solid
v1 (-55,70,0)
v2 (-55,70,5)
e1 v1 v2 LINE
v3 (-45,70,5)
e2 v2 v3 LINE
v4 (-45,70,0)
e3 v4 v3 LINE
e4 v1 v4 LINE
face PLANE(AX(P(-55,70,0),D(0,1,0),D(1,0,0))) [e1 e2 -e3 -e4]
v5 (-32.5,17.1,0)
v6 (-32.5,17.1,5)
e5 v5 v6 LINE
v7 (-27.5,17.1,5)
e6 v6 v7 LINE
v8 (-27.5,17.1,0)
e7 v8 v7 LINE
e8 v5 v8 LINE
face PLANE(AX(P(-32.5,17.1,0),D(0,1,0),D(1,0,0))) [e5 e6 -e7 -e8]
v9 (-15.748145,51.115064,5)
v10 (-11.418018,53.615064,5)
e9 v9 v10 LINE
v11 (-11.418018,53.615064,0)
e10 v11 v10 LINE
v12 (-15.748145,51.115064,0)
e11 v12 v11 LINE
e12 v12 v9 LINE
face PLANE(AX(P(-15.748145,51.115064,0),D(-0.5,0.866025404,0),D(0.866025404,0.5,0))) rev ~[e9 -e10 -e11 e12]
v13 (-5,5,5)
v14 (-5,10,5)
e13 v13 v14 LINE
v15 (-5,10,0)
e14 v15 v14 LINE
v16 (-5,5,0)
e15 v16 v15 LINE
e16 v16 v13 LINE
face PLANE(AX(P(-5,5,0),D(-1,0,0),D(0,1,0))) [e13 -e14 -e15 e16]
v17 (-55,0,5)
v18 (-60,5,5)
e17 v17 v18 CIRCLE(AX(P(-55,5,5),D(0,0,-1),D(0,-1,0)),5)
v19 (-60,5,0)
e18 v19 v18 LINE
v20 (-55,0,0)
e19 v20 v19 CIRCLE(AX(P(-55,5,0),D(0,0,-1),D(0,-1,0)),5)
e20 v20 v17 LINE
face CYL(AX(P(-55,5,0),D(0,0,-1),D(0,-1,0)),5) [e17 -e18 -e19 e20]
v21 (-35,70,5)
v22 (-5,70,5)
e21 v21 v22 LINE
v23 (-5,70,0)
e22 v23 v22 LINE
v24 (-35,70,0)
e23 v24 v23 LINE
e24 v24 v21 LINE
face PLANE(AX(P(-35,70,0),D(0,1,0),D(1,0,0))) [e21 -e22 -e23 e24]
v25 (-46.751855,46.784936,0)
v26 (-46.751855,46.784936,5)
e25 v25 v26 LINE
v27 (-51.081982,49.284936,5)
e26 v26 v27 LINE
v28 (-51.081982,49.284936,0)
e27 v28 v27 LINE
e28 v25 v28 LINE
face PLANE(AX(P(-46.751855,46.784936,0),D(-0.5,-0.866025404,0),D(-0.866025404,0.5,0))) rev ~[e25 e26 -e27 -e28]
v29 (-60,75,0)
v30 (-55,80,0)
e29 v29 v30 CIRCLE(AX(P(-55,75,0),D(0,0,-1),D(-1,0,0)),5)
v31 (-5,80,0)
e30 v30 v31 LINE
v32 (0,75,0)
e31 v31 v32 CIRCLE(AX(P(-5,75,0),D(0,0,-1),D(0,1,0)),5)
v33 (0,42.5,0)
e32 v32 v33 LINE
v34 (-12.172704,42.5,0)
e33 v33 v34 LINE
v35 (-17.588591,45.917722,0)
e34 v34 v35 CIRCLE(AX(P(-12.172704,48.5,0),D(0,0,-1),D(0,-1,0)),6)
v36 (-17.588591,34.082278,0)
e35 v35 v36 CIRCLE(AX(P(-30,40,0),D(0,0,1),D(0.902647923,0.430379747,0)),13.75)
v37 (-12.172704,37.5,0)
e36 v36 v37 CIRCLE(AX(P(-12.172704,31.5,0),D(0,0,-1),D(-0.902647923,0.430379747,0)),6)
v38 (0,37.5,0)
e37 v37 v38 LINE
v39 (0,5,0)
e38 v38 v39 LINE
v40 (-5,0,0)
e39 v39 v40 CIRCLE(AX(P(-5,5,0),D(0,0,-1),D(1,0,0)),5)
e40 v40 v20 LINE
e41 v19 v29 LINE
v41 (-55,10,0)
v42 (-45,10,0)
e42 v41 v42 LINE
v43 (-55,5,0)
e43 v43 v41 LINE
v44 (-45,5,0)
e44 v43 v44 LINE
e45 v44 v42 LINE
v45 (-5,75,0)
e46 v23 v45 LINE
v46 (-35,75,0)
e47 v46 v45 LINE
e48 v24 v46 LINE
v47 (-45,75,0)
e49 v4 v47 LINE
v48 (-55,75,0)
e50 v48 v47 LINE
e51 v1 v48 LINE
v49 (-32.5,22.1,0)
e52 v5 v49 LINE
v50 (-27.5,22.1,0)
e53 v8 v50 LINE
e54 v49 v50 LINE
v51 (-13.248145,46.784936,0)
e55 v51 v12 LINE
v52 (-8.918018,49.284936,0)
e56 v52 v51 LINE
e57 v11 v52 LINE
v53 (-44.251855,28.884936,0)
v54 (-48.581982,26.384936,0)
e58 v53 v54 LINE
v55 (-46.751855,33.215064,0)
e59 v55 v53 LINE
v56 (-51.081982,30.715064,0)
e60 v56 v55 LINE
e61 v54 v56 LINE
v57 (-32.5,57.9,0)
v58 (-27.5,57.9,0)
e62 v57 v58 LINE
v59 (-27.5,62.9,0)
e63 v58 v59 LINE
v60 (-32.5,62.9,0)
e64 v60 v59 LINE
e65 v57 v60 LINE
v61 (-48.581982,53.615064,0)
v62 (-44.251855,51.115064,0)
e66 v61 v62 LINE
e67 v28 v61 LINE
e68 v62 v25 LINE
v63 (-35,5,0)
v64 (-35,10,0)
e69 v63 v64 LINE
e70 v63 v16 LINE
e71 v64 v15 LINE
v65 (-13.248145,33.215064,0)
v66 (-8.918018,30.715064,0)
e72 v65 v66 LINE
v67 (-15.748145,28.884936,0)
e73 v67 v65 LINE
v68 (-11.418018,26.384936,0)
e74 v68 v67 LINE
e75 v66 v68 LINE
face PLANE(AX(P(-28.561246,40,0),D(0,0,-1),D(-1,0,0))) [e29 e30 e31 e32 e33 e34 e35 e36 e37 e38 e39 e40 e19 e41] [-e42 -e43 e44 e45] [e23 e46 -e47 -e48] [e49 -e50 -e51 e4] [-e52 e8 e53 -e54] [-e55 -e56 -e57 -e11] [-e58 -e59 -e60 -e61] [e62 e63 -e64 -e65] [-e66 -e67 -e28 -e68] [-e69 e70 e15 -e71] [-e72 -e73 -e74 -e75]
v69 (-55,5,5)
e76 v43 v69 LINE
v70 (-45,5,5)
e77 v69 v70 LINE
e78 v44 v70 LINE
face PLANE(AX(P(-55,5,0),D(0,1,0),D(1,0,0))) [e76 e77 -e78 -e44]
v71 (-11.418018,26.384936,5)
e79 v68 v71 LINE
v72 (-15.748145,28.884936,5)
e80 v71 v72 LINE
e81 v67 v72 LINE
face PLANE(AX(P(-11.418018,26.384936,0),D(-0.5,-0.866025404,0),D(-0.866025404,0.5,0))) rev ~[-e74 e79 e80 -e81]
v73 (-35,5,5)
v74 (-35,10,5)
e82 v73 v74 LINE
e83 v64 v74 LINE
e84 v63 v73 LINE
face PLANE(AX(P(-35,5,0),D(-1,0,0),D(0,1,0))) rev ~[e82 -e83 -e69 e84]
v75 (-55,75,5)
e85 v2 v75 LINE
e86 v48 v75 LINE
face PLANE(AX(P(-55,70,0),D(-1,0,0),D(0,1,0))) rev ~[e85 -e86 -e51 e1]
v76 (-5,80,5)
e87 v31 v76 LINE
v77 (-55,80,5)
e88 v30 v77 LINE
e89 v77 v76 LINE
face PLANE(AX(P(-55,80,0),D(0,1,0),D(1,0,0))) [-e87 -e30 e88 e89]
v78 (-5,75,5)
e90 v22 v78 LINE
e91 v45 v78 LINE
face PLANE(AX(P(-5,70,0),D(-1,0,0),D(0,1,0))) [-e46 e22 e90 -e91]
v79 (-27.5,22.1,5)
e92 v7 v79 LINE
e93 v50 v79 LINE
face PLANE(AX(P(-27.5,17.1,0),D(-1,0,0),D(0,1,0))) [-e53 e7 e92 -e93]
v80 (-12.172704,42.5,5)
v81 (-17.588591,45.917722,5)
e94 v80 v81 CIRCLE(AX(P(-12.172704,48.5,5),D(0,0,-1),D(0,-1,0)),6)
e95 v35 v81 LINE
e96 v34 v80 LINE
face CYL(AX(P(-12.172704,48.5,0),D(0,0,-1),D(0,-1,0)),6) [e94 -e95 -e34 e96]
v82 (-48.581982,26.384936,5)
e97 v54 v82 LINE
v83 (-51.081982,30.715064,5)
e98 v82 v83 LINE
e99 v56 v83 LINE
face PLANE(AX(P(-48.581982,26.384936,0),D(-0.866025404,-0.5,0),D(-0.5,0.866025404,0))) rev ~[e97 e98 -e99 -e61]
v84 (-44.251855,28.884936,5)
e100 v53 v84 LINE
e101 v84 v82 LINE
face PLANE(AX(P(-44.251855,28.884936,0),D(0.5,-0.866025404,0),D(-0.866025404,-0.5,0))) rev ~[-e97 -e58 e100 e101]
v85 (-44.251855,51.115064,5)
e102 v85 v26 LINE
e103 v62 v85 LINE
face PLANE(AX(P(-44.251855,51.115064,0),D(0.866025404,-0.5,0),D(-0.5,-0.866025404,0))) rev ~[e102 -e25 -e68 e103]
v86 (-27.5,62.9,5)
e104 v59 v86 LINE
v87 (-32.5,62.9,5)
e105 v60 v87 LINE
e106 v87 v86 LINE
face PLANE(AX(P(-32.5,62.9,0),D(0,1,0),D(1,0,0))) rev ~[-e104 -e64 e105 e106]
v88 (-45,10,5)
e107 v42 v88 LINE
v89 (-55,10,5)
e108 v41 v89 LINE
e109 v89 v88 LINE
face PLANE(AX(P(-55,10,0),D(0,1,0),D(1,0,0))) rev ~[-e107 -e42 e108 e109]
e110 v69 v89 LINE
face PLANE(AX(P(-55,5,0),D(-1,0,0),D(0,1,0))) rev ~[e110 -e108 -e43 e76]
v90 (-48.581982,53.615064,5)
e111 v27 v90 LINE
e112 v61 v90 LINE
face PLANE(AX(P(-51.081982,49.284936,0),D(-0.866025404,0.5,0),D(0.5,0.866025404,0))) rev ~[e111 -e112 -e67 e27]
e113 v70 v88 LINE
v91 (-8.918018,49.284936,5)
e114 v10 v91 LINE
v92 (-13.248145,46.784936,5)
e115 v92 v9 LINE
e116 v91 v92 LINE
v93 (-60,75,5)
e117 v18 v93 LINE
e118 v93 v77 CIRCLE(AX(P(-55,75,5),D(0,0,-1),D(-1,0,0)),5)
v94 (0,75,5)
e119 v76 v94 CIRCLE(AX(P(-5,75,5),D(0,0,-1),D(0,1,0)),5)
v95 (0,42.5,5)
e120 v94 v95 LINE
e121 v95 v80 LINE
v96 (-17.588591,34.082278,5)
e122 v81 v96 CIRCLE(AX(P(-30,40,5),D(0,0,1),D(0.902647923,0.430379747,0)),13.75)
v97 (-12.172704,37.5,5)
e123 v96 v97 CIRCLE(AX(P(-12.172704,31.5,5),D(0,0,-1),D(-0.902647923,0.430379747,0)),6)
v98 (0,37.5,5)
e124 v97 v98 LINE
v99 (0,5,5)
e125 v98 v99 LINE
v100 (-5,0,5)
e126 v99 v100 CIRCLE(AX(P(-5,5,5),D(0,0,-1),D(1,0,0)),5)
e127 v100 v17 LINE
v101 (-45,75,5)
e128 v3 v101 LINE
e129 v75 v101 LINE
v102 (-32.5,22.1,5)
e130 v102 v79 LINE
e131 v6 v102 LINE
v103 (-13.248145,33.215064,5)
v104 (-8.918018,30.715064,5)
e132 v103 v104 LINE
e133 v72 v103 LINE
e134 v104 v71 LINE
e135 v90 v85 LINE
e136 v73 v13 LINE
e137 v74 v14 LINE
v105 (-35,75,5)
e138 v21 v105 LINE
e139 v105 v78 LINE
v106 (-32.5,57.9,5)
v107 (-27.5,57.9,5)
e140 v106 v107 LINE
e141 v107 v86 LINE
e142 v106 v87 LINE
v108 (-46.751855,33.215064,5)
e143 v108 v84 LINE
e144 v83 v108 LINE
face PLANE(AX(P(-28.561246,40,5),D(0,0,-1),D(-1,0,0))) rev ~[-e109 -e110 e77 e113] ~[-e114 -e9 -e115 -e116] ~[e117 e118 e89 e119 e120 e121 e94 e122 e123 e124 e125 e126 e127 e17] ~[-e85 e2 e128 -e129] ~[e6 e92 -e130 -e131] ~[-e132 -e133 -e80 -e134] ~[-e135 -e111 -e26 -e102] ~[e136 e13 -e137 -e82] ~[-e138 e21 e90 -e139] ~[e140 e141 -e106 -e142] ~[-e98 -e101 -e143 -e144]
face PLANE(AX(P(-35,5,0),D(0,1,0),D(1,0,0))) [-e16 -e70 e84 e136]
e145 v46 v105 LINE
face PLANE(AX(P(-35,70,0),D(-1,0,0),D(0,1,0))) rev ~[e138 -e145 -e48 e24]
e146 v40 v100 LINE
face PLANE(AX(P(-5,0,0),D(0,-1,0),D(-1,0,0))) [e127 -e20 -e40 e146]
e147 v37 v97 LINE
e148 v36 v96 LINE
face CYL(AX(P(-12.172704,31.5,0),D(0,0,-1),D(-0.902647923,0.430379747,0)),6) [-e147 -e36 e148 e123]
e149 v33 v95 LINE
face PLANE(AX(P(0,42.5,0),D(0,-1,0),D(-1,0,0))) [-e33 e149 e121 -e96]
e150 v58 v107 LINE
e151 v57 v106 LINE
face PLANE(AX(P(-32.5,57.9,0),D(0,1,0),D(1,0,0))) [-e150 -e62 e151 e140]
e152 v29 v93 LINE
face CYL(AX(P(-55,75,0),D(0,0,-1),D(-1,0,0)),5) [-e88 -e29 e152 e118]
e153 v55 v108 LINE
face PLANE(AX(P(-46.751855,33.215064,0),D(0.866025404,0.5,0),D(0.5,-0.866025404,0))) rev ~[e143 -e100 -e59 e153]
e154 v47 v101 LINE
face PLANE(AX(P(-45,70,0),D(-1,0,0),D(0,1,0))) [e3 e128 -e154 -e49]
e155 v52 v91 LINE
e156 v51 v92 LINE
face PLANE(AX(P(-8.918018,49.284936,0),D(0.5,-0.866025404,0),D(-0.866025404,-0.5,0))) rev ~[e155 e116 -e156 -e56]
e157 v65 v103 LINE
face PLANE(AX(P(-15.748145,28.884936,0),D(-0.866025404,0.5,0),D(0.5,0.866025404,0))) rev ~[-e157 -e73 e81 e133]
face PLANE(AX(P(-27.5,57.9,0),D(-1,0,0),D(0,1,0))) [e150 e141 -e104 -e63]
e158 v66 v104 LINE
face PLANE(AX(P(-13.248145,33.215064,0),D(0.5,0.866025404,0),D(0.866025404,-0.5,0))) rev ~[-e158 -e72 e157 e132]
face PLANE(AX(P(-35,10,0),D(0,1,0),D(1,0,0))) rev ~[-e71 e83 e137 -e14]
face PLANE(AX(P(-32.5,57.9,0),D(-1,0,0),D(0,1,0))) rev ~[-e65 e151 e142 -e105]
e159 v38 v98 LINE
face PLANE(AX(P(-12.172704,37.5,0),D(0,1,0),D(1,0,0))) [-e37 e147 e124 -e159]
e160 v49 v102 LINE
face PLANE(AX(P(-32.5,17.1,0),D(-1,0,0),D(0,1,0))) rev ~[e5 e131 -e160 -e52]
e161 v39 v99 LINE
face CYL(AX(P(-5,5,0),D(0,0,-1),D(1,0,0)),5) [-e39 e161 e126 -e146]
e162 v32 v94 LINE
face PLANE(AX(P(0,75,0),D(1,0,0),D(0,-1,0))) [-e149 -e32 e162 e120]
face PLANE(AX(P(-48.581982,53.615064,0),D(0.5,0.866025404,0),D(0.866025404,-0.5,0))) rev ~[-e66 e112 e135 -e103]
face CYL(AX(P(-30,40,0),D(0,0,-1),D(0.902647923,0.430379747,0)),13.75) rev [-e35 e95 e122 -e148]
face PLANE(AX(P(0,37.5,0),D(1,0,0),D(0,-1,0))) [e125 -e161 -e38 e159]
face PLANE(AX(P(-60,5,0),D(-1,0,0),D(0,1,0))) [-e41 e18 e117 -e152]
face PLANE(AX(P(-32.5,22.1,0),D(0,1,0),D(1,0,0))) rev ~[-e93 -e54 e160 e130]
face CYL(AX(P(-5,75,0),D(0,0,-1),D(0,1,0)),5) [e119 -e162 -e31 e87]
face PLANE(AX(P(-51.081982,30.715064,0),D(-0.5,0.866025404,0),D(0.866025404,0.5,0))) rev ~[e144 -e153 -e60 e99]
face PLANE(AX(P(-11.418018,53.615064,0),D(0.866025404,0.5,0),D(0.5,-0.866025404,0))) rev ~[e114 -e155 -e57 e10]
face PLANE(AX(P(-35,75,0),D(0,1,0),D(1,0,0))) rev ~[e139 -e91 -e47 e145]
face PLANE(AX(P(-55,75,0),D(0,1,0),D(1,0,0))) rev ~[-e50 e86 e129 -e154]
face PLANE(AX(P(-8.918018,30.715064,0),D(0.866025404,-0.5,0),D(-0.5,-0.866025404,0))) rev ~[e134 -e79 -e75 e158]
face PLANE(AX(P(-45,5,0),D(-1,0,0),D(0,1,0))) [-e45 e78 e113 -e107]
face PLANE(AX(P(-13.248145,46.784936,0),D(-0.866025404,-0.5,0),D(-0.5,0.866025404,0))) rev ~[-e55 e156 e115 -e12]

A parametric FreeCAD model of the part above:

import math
import FreeCAD as App
import Part
import Sketcher
Q = App.Units.Quantity


def add_polygon(sketch, points):
    """Adds a closed chain of lines whose ends are joined by coincident constraints."""
    first, n = sketch.GeometryCount, len(points)
    for a, b in zip(points, points[1:] + points[:1]):
        sketch.addGeometry(Part.LineSegment(App.Vector(*a, 0), App.Vector(*b, 0)), False)
    for i in range(n):
        sketch.addConstraint(Sketcher.Constraint("Coincident", first + i, 2, first + (i + 1) % n, 1))

doc = App.newDocument("Part")
body = doc.addObject("PartDesign::Body", "Body")

# Sketch on XY plane
sketch1 = body.newObject("Sketcher::SketchObject", "Sketch")
sketch1.AttachmentSupport = (doc.getObject("XY_Plane"), [""])
sketch1.MapMode = "FlatFace"
sketch1.addGeometry(Part.LineSegment(App.Vector(-5, 80, 0), App.Vector(-55, 80, 0)), False)  # 0
sketch1.addGeometry(Part.ArcOfCircle(Part.Circle(App.Vector(-55, 75, 0), App.Vector(0, 0, 1), 5), math.radians(90), math.radians(180)), False)  # 1
sketch1.addGeometry(Part.LineSegment(App.Vector(-60, 75, 0), App.Vector(-60, 5, 0)), False)  # 2
sketch1.addGeometry(Part.ArcOfCircle(Part.Circle(App.Vector(-55, 5, 0), App.Vector(0, 0, 1), 5), math.radians(180), math.radians(270)), False)  # 3
sketch1.addGeometry(Part.LineSegment(App.Vector(-55, 0, 0), App.Vector(-5, 0, 0)), False)  # 4
sketch1.addGeometry(Part.ArcOfCircle(Part.Circle(App.Vector(-5, 5, 0), App.Vector(0, 0, 1), 5), math.radians(-90), math.radians(0)), False)  # 5
sketch1.addGeometry(Part.LineSegment(App.Vector(0, 5, 0), App.Vector(0, 37.5, 0)), False)  # 6
sketch1.addGeometry(Part.LineSegment(App.Vector(0, 37.5, 0), App.Vector(-12.2, 37.5, 0)), False)  # 7
sketch1.addGeometry(Part.ArcOfCircle(Part.Circle(App.Vector(-12.2, 31.5, 0), App.Vector(0, 0, 1), 6), math.radians(90), math.radians(155)), False)  # 8
sketch1.addGeometry(Part.ArcOfCircle(Part.Circle(App.Vector(-30, 40, 0), App.Vector(0, 0, 1), 13.8), math.radians(25), math.radians(335)), False)  # 9
sketch1.addGeometry(Part.ArcOfCircle(Part.Circle(App.Vector(-12.2, 48.5, 0), App.Vector(0, 0, 1), 6), math.radians(-155), math.radians(-90)), False)  # 10
sketch1.addGeometry(Part.LineSegment(App.Vector(-12.2, 42.5, 0), App.Vector(0, 42.5, 0)), False)  # 11
sketch1.addGeometry(Part.LineSegment(App.Vector(0, 42.5, 0), App.Vector(0, 75, 0)), False)  # 12
sketch1.addGeometry(Part.ArcOfCircle(Part.Circle(App.Vector(-5, 75, 0), App.Vector(0, 0, 1), 5), math.radians(0), math.radians(90)), False)  # 13
add_polygon(sketch1, [(-35, 5), (-35, 10), (-5, 10), (-5, 5)])  # lines 14-17
add_polygon(sketch1, [(-8.9, 30.7), (-11.4, 26.4), (-15.7, 28.9), (-13.2, 33.2)])  # lines 18-21
add_polygon(sketch1, [(-32.5, 17.1), (-32.5, 22.1), (-27.5, 22.1), (-27.5, 17.1)])  # lines 22-25
add_polygon(sketch1, [(-55, 5), (-55, 10), (-45, 10), (-45, 5)])  # lines 26-29
add_polygon(sketch1, [(-48.6, 26.4), (-51.1, 30.7), (-46.8, 33.2), (-44.3, 28.9)])  # lines 30-33
add_polygon(sketch1, [(-11.4, 53.6), (-8.9, 49.3), (-13.2, 46.8), (-15.7, 51.1)])  # lines 34-37
add_polygon(sketch1, [(-35, 70), (-35, 75), (-5, 75), (-5, 70)])  # lines 38-41
add_polygon(sketch1, [(-51.1, 49.3), (-48.6, 53.6), (-44.3, 51.1), (-46.8, 46.8)])  # lines 42-45
add_polygon(sketch1, [(-32.5, 57.9), (-32.5, 62.9), (-27.5, 62.9), (-27.5, 57.9)])  # lines 46-49
add_polygon(sketch1, [(-55, 70), (-55, 75), (-45, 75), (-45, 70)])  # lines 50-53
sketch1.addConstraint(Sketcher.Constraint("Tangent", 0, 2, 1, 1))
sketch1.addConstraint(Sketcher.Constraint("Tangent", 1, 2, 2, 1))
sketch1.addConstraint(Sketcher.Constraint("Tangent", 2, 2, 3, 1))
sketch1.addConstraint(Sketcher.Constraint("Tangent", 3, 2, 4, 1))
sketch1.addConstraint(Sketcher.Constraint("Tangent", 4, 2, 5, 1))
sketch1.addConstraint(Sketcher.Constraint("Tangent", 5, 2, 6, 1))
sketch1.addConstraint(Sketcher.Constraint("Coincident", 6, 2, 7, 1))
sketch1.addConstraint(Sketcher.Constraint("Tangent", 7, 2, 8, 1))
sketch1.addConstraint(Sketcher.Constraint("Tangent", 8, 2, 9, 2))
sketch1.addConstraint(Sketcher.Constraint("Tangent", 9, 1, 10, 1))
sketch1.addConstraint(Sketcher.Constraint("Tangent", 10, 2, 11, 1))
sketch1.addConstraint(Sketcher.Constraint("Coincident", 11, 2, 12, 1))
sketch1.addConstraint(Sketcher.Constraint("Tangent", 12, 2, 13, 1))
sketch1.addConstraint(Sketcher.Constraint("Tangent", 13, 2, 0, 1))
sketch1.addConstraint(Sketcher.Constraint("Horizontal", 0))
sketch1.addConstraint(Sketcher.Constraint("Vertical", 2))
sketch1.addConstraint(Sketcher.Constraint("Horizontal", 4))
sketch1.addConstraint(Sketcher.Constraint("Vertical", 6))
sketch1.addConstraint(Sketcher.Constraint("Horizontal", 7))
sketch1.addConstraint(Sketcher.Constraint("Horizontal", 11))
sketch1.addConstraint(Sketcher.Constraint("Vertical", 12))
sketch1.addConstraint(Sketcher.Constraint("Vertical", 14))
sketch1.addConstraint(Sketcher.Constraint("Horizontal", 15))
sketch1.addConstraint(Sketcher.Constraint("Vertical", 16))
sketch1.addConstraint(Sketcher.Constraint("Horizontal", 17))
sketch1.addConstraint(Sketcher.Constraint("Vertical", 22))
sketch1.addConstraint(Sketcher.Constraint("Horizontal", 23))
sketch1.addConstraint(Sketcher.Constraint("Vertical", 24))
sketch1.addConstraint(Sketcher.Constraint("Horizontal", 25))
sketch1.addConstraint(Sketcher.Constraint("Vertical", 26))
sketch1.addConstraint(Sketcher.Constraint("Horizontal", 27))
sketch1.addConstraint(Sketcher.Constraint("Vertical", 28))
sketch1.addConstraint(Sketcher.Constraint("Horizontal", 29))
sketch1.addConstraint(Sketcher.Constraint("Vertical", 38))
sketch1.addConstraint(Sketcher.Constraint("Horizontal", 39))
sketch1.addConstraint(Sketcher.Constraint("Vertical", 40))
sketch1.addConstraint(Sketcher.Constraint("Horizontal", 41))
sketch1.addConstraint(Sketcher.Constraint("Vertical", 46))
sketch1.addConstraint(Sketcher.Constraint("Horizontal", 47))
sketch1.addConstraint(Sketcher.Constraint("Vertical", 48))
sketch1.addConstraint(Sketcher.Constraint("Horizontal", 49))
sketch1.addConstraint(Sketcher.Constraint("Vertical", 50))
sketch1.addConstraint(Sketcher.Constraint("Horizontal", 51))
sketch1.addConstraint(Sketcher.Constraint("Vertical", 52))
sketch1.addConstraint(Sketcher.Constraint("Horizontal", 53))
sketch1.addConstraint(Sketcher.Constraint("Coincident", 16, 2, 5, 3))
sketch1.addConstraint(Sketcher.Constraint("Coincident", 29, 2, 3, 3))
sketch1.addConstraint(Sketcher.Constraint("Coincident", 39, 2, 13, 3))
sketch1.addConstraint(Sketcher.Constraint("Coincident", 50, 2, 1, 3))
sketch1.addConstraint(Sketcher.Constraint("Equal", 1, 3))
sketch1.addConstraint(Sketcher.Constraint("Equal", 3, 5))
sketch1.addConstraint(Sketcher.Constraint("Equal", 8, 10))
sketch1.addConstraint(Sketcher.Constraint("Equal", 5, 13))
sketch1.addConstraint(Sketcher.Constraint("PointOnObject", 3, 2, -1))
sketch1.addConstraint(Sketcher.Constraint("PointOnObject", 5, 2, -2))
sketch1.addConstraint(Sketcher.Constraint("PointOnObject", 11, 2, -2))
sketch1.addConstraint(Sketcher.Constraint("Perpendicular", 18, 19))
sketch1.addConstraint(Sketcher.Constraint("Perpendicular", 19, 20))
sketch1.addConstraint(Sketcher.Constraint("Perpendicular", 20, 21))
sketch1.addConstraint(Sketcher.Constraint("Perpendicular", 30, 31))
sketch1.addConstraint(Sketcher.Constraint("Perpendicular", 31, 32))
sketch1.addConstraint(Sketcher.Constraint("Perpendicular", 32, 33))
sketch1.addConstraint(Sketcher.Constraint("Perpendicular", 33, 34))
sketch1.addConstraint(Sketcher.Constraint("Perpendicular", 34, 35))
sketch1.addConstraint(Sketcher.Constraint("Perpendicular", 35, 36))
sketch1.addConstraint(Sketcher.Constraint("Perpendicular", 36, 37))
sketch1.addConstraint(Sketcher.Constraint("Perpendicular", 21, 42))
sketch1.addConstraint(Sketcher.Constraint("Perpendicular", 42, 43))
sketch1.addConstraint(Sketcher.Constraint("Perpendicular", 43, 44))
sketch1.addConstraint(Sketcher.Constraint("Perpendicular", 44, 45))
sketch1.addConstraint(Sketcher.Constraint("Horizontal", 15, 2, 26, 2))
sketch1.addConstraint(Sketcher.Constraint("Horizontal", 21, 2, 30, 2))
sketch1.addConstraint(Sketcher.Constraint("Horizontal", 20, 2, 31, 2))
sketch1.addConstraint(Sketcher.Constraint("Horizontal", 19, 2, 32, 2))
sketch1.addConstraint(Sketcher.Constraint("Horizontal", 37, 2, 42, 2))
sketch1.addConstraint(Sketcher.Constraint("Horizontal", 36, 2, 43, 2))
sketch1.addConstraint(Sketcher.Constraint("Horizontal", 35, 2, 44, 2))
sketch1.addConstraint(Sketcher.Constraint("Horizontal", 41, 2, 52, 2))
sketch1.addConstraint(Sketcher.Constraint("Vertical", 8, 3, 10, 3))
sketch1.addConstraint(Sketcher.Constraint("Vertical", 21, 2, 34, 2))
sketch1.addConstraint(Sketcher.Constraint("Vertical", 20, 2, 35, 2))
sketch1.addConstraint(Sketcher.Constraint("Vertical", 19, 2, 36, 2))
sketch1.addConstraint(Sketcher.Constraint("Vertical", 17, 2, 38, 2))
sketch1.addConstraint(Sketcher.Constraint("Vertical", 33, 2, 42, 2))
sketch1.addConstraint(Sketcher.Constraint("Vertical", 32, 2, 43, 2))
sketch1.addConstraint(Sketcher.Constraint("Vertical", 25, 2, 46, 2))
sketch1.addConstraint(Sketcher.Constraint("Vertical", 24, 2, 47, 2))
sketch1.addConstraint(Sketcher.Constraint("Vertical", 28, 2, 51, 2))
sketch1.addConstraint(Sketcher.Constraint("Equal", 6, 12))
sketch1.addConstraint(Sketcher.Constraint("Equal", 49, 14))
sketch1.addConstraint(Sketcher.Constraint("Equal", 16, 22))
sketch1.addConstraint(Sketcher.Constraint("Equal", 28, 38))
sketch1.addConstraint(Sketcher.Constraint("Equal", 40, 46))
sketch1.addConstraint(Sketcher.Constraint("Equal", 18, 19))
sketch1.addConstraint(Sketcher.Constraint("Radius", 1, Q("5 mm")))
sketch1.addConstraint(Sketcher.Constraint("Radius", 8, Q("6 mm")))
sketch1.addConstraint(Sketcher.Constraint("DistanceX", 0, 2, 0, 1, Q("50 mm")))
sketch1.addConstraint(Sketcher.Constraint("DistanceX", 15, 1, 15, 2, Q("30 mm")))
sketch1.addConstraint(Sketcher.Constraint("DistanceX", 23, 1, 23, 2, Q("5 mm")))
sketch1.addConstraint(Sketcher.Constraint("DistanceX", 27, 1, 27, 2, Q("10 mm")))
sketch1.addConstraint(Sketcher.Constraint("DistanceY", 2, 2, 2, 1, Q("70 mm")))
sketch1.addConstraint(Sketcher.Constraint("Angle", 18, Q("-120 deg")))
sketch1.addConstraint(Sketcher.Constraint("Radius", 9, Q("13.75 mm")))
sketch1.addConstraint(Sketcher.Constraint("Distance", 18, Q("5 mm")))
sketch1.addConstraint(Sketcher.Constraint("DistanceY", 6, 1, 6, 2, Q("32.5 mm")))
sketch1.addConstraint(Sketcher.Constraint("DistanceX", 9, 3, -1, 1, Q("30 mm")))
sketch1.addConstraint(Sketcher.Constraint("DistanceX", 22, 2, -1, 1, Q("32.5 mm")))
sketch1.addConstraint(Sketcher.Constraint("DistanceY", -1, 1, 22, 2, Q("22.1 mm")))
sketch1.addConstraint(Sketcher.Constraint("DistanceY", -1, 1, 46, 2, Q("62.9 mm")))
sketch1.addConstraint(Sketcher.Constraint("DistanceX", 18, 2, -1, 1, Q("11.418018 mm")))
sketch1.addConstraint(Sketcher.Constraint("DistanceX", 30, 2, -1, 1, Q("51.081982 mm")))
sketch1.addConstraint(Sketcher.Constraint("DistanceY", -1, 1, 18, 2, Q("26.384936 mm")))
sketch1.addConstraint(Sketcher.Constraint("DistanceY", -1, 1, 34, 2, Q("49.284936 mm")))
pad1 = body.newObject("PartDesign::Pad", "Pad")
pad1.Profile = sketch1
pad1.Length = 5

doc.recompute()
